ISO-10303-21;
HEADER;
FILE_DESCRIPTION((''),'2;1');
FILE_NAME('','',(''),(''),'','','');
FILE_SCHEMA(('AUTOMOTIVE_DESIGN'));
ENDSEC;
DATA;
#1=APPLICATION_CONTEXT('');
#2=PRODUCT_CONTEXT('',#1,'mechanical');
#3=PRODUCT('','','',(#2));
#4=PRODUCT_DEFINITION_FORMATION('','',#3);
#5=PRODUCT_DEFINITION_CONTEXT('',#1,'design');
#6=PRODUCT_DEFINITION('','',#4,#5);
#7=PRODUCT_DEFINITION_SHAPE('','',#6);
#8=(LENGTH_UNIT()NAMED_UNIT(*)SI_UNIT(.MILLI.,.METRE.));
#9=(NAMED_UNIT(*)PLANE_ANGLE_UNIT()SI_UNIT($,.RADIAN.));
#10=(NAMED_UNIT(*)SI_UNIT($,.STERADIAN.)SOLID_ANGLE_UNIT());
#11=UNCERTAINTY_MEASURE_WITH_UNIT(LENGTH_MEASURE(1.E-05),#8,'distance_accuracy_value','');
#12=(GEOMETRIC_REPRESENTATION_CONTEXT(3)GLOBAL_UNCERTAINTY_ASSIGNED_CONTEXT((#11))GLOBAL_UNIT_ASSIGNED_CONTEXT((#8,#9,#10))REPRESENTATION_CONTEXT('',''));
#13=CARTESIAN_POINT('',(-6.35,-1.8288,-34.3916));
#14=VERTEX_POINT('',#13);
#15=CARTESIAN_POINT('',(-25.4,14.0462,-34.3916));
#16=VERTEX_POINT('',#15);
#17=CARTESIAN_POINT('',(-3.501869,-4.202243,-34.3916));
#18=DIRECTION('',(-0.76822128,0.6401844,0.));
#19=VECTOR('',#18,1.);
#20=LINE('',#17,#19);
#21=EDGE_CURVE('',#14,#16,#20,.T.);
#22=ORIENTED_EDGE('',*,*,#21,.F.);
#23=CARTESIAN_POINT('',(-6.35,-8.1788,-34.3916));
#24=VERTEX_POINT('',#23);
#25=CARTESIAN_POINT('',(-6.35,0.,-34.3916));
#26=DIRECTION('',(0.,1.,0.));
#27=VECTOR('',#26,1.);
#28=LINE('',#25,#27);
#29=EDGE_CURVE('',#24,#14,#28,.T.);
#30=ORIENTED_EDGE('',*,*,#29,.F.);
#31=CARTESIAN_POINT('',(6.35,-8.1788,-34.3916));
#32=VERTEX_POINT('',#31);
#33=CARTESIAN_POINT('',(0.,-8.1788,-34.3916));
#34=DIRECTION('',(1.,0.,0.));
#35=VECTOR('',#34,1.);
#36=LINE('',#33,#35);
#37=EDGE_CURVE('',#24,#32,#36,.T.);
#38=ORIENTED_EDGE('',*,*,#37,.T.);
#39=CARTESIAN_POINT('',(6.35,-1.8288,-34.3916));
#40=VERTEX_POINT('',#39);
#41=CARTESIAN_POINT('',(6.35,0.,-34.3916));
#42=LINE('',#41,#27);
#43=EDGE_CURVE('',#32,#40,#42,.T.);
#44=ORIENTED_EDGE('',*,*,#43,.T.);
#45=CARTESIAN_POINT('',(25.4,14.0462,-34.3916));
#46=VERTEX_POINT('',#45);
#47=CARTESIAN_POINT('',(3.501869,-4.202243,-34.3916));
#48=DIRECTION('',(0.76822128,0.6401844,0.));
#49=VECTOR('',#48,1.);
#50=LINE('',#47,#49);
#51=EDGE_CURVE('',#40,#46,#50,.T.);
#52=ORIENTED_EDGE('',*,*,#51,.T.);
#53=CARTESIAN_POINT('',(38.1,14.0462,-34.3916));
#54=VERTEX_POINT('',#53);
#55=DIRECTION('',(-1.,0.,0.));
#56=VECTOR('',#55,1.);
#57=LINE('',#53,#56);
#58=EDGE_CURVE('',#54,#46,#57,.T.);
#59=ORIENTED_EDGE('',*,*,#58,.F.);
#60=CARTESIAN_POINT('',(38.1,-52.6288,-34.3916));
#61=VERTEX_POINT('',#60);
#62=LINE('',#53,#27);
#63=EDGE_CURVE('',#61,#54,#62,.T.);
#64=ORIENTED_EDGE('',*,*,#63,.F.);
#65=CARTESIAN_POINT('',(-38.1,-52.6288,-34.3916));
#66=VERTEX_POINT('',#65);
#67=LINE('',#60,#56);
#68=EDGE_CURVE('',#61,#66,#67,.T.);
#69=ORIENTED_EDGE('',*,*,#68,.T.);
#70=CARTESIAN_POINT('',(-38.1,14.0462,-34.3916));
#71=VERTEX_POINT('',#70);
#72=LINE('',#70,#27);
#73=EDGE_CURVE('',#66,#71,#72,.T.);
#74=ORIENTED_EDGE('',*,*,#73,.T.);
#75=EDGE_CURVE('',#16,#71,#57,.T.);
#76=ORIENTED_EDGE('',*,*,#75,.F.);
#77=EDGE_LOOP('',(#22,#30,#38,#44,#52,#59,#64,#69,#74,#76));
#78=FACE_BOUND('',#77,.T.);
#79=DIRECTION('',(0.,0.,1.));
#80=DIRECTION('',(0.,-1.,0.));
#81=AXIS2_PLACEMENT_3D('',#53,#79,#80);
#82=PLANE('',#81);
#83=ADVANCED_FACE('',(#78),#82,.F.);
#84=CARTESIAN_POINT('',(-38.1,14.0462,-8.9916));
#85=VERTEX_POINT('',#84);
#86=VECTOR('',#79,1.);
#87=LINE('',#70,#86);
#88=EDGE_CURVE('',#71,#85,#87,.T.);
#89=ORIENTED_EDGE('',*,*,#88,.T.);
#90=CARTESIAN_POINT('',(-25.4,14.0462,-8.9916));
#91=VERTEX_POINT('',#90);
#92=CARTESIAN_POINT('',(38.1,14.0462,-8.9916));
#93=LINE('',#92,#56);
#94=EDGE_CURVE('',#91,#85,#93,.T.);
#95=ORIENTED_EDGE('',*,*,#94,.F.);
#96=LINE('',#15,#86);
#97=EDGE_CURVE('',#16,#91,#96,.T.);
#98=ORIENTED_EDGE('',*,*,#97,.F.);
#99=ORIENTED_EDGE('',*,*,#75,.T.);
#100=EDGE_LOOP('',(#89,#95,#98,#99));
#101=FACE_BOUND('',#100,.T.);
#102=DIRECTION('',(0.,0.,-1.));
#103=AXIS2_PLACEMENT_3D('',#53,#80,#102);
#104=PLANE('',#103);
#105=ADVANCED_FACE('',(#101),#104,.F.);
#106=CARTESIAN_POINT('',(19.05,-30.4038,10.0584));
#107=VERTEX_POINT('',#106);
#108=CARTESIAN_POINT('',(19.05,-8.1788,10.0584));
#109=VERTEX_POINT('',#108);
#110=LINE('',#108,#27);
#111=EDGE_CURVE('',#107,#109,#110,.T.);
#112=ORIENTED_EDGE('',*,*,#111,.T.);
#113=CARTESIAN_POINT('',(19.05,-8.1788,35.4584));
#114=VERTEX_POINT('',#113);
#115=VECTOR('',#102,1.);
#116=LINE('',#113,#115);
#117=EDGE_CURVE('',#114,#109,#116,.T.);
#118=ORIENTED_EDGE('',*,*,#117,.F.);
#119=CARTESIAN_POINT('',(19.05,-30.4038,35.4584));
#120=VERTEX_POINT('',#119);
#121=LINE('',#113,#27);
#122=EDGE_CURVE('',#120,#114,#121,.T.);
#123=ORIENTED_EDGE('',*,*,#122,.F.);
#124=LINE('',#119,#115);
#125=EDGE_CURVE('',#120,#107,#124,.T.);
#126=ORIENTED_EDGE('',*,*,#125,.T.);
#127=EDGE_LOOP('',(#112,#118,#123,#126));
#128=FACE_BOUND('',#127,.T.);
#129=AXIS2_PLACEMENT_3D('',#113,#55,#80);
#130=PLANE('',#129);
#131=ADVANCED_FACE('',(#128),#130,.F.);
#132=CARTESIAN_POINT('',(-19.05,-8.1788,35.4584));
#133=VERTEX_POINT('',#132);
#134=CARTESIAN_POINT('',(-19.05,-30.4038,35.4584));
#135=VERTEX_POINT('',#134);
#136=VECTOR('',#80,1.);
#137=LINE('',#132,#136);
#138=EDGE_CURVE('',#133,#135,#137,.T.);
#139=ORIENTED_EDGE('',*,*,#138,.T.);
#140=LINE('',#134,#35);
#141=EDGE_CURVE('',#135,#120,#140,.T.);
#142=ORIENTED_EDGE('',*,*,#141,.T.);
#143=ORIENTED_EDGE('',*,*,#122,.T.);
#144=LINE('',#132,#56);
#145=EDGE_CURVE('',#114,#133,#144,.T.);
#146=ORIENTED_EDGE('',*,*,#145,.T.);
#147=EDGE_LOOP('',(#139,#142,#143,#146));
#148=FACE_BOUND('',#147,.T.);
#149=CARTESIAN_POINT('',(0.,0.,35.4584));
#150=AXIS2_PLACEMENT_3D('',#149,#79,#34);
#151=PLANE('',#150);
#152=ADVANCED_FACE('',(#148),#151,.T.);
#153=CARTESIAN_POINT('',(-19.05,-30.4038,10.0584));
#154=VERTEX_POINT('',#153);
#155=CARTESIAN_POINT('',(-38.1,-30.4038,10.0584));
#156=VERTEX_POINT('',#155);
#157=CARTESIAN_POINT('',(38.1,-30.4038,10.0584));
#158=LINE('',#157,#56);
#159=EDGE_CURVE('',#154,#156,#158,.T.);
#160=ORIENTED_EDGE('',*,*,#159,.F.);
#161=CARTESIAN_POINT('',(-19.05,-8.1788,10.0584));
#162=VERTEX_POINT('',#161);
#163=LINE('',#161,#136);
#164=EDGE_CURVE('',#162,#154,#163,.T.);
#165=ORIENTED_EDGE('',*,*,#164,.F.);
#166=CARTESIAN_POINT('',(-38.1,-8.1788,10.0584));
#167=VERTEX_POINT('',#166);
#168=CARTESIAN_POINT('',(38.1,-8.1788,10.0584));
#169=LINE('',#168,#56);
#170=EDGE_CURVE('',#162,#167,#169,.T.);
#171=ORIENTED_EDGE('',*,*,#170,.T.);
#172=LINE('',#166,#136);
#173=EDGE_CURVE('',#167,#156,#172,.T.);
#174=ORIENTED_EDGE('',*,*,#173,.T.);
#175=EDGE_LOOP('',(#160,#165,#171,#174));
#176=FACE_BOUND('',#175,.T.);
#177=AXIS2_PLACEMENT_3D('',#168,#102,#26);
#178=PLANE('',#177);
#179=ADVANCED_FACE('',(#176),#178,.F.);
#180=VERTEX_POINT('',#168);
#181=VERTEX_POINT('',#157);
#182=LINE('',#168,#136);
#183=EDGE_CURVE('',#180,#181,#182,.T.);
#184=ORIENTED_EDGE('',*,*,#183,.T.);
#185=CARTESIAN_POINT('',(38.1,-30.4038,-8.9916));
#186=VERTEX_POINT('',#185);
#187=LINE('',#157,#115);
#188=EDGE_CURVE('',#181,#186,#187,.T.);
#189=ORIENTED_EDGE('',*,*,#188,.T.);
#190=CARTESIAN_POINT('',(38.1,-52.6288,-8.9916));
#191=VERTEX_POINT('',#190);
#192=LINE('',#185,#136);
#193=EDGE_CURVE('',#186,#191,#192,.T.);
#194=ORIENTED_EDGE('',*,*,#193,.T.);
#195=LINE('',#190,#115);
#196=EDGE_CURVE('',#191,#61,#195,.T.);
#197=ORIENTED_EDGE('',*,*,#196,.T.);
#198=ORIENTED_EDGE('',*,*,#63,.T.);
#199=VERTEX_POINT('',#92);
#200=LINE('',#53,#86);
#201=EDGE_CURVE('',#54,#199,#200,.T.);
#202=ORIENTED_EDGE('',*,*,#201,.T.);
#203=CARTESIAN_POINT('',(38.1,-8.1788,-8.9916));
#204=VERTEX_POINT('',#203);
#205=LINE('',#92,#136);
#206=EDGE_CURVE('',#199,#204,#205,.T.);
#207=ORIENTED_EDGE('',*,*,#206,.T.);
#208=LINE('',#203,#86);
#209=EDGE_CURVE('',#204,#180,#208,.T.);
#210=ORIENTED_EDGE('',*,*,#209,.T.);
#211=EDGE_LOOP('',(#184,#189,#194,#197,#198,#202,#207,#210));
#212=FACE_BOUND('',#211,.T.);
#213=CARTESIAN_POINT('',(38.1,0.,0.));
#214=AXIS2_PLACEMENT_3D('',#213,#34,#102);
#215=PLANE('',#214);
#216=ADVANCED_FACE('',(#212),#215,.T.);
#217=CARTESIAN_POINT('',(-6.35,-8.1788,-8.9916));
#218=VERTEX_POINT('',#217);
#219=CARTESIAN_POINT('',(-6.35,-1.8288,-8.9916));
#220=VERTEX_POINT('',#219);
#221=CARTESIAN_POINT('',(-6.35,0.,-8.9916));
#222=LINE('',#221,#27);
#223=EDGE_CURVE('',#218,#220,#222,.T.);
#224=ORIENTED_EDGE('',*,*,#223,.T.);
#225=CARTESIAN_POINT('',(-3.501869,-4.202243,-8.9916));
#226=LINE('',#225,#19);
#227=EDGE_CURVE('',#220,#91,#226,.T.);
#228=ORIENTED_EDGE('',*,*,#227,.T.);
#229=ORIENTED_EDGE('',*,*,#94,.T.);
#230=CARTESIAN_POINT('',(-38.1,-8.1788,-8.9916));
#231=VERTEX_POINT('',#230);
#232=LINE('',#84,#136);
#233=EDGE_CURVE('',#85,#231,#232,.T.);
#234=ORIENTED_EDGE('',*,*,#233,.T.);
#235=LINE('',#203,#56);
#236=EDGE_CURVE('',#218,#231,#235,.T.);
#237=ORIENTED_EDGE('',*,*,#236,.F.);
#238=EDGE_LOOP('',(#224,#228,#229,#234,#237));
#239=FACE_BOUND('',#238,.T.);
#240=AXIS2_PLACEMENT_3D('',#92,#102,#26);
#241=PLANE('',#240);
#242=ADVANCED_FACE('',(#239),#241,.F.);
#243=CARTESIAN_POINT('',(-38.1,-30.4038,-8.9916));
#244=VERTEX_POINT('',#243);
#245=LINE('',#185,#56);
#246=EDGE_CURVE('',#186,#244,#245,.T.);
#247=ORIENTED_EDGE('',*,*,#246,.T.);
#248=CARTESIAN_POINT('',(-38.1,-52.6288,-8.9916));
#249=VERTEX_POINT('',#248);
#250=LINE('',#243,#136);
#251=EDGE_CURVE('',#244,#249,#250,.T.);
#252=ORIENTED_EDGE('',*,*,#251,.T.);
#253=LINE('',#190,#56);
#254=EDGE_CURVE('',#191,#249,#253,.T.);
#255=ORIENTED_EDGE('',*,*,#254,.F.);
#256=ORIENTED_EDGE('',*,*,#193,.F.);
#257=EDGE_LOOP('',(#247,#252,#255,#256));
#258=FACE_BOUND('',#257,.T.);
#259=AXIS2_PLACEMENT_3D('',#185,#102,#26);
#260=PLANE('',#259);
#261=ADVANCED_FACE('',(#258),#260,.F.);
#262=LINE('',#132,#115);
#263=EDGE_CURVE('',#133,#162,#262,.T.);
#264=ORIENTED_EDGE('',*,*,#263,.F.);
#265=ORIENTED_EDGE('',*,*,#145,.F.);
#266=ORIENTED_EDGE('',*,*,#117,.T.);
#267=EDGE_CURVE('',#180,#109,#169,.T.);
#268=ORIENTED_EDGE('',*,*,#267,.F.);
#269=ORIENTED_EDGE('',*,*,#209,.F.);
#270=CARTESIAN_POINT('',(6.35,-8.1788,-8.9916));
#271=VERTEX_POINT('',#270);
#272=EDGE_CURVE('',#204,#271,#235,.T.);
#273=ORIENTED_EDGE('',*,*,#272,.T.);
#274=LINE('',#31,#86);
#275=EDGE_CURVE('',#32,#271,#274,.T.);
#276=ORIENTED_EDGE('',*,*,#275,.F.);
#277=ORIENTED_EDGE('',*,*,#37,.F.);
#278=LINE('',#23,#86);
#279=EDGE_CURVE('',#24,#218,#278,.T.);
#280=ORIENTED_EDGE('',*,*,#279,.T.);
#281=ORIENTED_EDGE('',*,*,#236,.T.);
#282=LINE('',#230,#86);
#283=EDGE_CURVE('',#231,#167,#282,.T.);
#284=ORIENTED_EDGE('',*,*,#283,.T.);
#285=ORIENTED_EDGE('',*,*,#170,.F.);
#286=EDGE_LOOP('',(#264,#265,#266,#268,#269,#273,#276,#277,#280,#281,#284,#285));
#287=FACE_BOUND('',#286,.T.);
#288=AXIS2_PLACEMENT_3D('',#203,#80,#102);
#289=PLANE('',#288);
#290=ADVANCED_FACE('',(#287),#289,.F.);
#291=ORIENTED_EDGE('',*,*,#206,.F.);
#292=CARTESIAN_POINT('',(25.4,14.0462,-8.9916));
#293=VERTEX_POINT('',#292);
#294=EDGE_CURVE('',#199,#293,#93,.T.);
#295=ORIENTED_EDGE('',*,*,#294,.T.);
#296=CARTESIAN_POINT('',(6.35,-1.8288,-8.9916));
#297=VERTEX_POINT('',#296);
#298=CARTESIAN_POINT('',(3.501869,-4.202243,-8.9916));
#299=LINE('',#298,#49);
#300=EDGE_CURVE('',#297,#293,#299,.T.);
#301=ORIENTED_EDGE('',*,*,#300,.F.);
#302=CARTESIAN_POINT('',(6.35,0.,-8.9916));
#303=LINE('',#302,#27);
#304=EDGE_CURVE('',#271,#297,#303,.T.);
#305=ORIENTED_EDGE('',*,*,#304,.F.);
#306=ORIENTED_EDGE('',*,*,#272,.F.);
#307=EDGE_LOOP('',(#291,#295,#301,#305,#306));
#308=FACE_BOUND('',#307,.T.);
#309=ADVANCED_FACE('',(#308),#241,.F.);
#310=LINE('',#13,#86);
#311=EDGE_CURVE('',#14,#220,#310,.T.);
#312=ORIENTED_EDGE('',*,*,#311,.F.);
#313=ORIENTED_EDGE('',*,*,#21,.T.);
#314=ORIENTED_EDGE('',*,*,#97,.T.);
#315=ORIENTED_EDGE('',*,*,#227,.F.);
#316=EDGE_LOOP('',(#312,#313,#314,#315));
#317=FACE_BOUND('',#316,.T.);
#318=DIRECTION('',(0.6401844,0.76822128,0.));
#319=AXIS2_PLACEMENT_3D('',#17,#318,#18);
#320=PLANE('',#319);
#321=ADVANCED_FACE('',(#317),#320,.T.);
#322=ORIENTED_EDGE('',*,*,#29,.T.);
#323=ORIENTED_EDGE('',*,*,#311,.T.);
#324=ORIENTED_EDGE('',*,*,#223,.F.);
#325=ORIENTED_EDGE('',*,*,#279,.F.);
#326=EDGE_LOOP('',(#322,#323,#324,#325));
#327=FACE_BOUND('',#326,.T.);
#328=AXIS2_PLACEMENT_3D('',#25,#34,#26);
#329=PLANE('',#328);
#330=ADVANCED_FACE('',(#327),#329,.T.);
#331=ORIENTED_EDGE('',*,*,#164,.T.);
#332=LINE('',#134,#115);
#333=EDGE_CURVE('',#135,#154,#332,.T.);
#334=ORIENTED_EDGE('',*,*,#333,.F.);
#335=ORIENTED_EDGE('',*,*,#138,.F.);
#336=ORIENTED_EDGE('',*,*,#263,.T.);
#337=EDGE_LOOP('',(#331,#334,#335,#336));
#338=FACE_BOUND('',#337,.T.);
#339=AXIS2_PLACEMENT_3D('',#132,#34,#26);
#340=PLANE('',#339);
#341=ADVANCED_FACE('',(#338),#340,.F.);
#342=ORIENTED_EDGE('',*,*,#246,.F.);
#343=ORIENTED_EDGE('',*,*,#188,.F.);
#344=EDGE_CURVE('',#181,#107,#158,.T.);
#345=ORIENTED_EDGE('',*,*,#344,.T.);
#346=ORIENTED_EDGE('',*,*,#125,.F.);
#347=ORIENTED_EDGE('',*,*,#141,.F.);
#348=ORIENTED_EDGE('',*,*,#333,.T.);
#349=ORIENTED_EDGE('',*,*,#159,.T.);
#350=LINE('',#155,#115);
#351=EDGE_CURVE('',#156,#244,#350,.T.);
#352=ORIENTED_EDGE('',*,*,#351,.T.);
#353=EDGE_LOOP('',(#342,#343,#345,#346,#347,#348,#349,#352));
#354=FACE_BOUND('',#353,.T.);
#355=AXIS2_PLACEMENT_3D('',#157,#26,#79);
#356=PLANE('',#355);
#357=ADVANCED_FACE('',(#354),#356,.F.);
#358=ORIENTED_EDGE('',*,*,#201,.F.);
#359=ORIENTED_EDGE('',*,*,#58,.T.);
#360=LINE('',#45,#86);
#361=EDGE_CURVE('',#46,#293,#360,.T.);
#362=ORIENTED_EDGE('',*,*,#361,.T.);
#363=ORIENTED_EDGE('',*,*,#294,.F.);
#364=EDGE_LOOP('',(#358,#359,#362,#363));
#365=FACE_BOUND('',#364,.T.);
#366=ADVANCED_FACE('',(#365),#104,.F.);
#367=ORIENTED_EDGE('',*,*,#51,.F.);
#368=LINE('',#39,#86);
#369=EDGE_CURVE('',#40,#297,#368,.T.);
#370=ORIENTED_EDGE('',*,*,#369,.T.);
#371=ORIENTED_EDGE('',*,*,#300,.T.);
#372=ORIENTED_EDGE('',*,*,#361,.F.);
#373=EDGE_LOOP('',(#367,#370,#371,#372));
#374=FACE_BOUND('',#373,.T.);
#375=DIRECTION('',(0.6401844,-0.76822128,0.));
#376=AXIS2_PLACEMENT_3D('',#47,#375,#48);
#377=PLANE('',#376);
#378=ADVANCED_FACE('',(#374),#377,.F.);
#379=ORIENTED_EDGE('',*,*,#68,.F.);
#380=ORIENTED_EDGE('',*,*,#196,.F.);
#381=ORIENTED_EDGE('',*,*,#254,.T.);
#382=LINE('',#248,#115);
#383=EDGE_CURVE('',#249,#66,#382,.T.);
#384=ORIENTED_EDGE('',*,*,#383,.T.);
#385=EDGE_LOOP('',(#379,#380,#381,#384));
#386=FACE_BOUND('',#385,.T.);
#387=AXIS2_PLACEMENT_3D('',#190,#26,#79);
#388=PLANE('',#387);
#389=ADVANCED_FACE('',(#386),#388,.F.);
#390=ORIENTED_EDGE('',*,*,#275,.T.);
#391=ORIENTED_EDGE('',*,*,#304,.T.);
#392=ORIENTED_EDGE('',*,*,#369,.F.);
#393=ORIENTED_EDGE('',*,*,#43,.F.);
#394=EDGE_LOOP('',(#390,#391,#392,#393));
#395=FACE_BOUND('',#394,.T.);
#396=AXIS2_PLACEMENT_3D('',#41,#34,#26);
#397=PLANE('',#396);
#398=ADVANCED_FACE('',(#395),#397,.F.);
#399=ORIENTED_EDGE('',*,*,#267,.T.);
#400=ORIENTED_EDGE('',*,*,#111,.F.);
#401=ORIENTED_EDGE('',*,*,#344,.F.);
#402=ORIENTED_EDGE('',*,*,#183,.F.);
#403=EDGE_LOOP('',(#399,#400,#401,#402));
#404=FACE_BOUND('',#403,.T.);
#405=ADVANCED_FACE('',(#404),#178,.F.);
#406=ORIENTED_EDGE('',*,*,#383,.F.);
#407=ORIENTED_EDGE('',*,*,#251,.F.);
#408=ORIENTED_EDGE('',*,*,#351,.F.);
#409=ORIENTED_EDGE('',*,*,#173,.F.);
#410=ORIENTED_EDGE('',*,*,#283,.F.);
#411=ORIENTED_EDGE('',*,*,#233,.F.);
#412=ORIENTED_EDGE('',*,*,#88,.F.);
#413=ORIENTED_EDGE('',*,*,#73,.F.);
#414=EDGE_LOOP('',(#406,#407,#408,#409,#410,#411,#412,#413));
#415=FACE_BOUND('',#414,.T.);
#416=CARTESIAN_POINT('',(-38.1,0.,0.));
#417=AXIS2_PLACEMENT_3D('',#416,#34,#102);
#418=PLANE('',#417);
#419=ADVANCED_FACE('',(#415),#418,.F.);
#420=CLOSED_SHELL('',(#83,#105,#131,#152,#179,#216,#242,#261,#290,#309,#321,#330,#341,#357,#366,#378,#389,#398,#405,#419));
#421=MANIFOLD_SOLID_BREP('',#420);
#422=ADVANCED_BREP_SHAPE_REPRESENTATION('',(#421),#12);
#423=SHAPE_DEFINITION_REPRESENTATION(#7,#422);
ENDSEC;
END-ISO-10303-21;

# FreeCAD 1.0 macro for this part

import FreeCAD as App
import Part
import Sketcher
from FreeCAD import Vector
Q = App.Units.Quantity


def add_polygon(sketch, points):
    """Adds a closed chain of lines whose ends are joined by coincident constraints."""
    first, n = sketch.GeometryCount, len(points)
    for a, b in zip(points, points[1:] + points[:1]):
        sketch.addGeometry(Part.LineSegment(App.Vector(*a, 0), App.Vector(*b, 0)), False)
    for i in range(n):
        sketch.addConstraint(Sketcher.Constraint("Coincident", first + i, 2, first + (i + 1) % n, 1))

doc = App.newDocument("Part")
body = doc.addObject("PartDesign::Body", "Body")

sketch1 = body.newObject("Sketcher::SketchObject", "Sketch")
sketch1.AttachmentSupport = (doc.getObject("YZ_Plane"), [""])
sketch1.MapMode = "FlatFace"
add_polygon(sketch1, [(-30, 10), (-30, -9), (-53, -9), (-53, -34), (14, -34), (14, -9), (-8, -9), (-8, 10)])
sketch1.addConstraint([
    Sketcher.Constraint("Vertical", 0),
    Sketcher.Constraint("Horizontal", 1),
    Sketcher.Constraint("Vertical", 2),
    Sketcher.Constraint("Horizontal", 3),
    Sketcher.Constraint("Vertical", 4),
    Sketcher.Constraint("Horizontal", 5),
    Sketcher.Constraint("Vertical", 6),
    Sketcher.Constraint("Horizontal", 7),
    Sketcher.Constraint("Horizontal", 1, 2, 4, 2),
    Sketcher.Constraint("Equal", 1, 5),
    Sketcher.Constraint("Equal", 5, 7),
    Sketcher.Constraint("DistanceY", 2, 2, 2, 1, Q("1 in")),
    Sketcher.Constraint("DistanceY", 0, 2, 0, 1, Q("0.75 in")),
    Sketcher.Constraint("DistanceX", 1, 2, 1, 1, Q("0.875 in")),
    Sketcher.Constraint("DistanceX", 0, 2, -1, 1, Q("1.197 in")),
    Sketcher.Constraint("DistanceY", 0, 2, -1, 1, Q("0.354 in")),
])
pad1 = body.newObject("PartDesign::Pad", "Pad")
pad1.Profile = sketch1
pad1.Length = Q("3 in")
pad1.Midplane = True

sketch2 = body.newObject("Sketcher::SketchObject", "Sketch001")
sketch2.AttachmentSupport = (doc.getObject("XY_Plane"), [""])
sketch2.MapMode = "FlatFace"
sketch2.AttachmentOffset = App.Placement(Vector(0, 0, 0.396 * 25.4), App.Rotation())
add_polygon(sketch2, [(-19, -8), (-19, -30), (19, -30), (19, -8)])
sketch2.addConstraint([
    Sketcher.Constraint("Vertical", 0),
    Sketcher.Constraint("Horizontal", 1),
    Sketcher.Constraint("Vertical", 2),
    Sketcher.Constraint("Horizontal", 3),
    Sketcher.Constraint("DistanceX", 1, 1, 1, 2, Q("1.5 in")),
    Sketcher.Constraint("DistanceY", 0, 2, 0, 1, Q("0.875 in")),
    Sketcher.Constraint("DistanceX", 0, 2, -1, 1, Q("0.75 in")),
    Sketcher.Constraint("DistanceY", 0, 2, -1, 1, Q("1.197 in")),
])
pad2 = body.newObject("PartDesign::Pad", "Pad001")
pad2.Profile = sketch2
pad2.Length = Q("1 in")

sketch3 = body.newObject("Sketcher::SketchObject", "Sketch002")
sketch3.AttachmentSupport = (doc.getObject("XY_Plane"), [""])
sketch3.MapMode = "FlatFace"
sketch3.AttachmentOffset = App.Placement(Vector(0, 0, -0.354 * 25.4), App.Rotation())
add_polygon(sketch3, [(6, -2), (25, 14), (-25, 14), (-6, -2), (-6, -8), (6, -8)])
sketch3.addConstraint([
    Sketcher.Constraint("Horizontal", 1),
    Sketcher.Constraint("Vertical", 3),
    Sketcher.Constraint("Horizontal", 4),
    Sketcher.Constraint("Vertical", 5),
    Sketcher.Constraint("Symmetric", 2, 2, 5, 2, -2),
    Sketcher.Constraint("Equal", 0, 2),
    Sketcher.Constraint("DistanceX", 1, 2, 1, 1, Q("2 in")),
    Sketcher.Constraint("DistanceX", 4, 1, 4, 2, Q("0.5 in")),
    Sketcher.Constraint("DistanceY", 3, 2, 3, 1, Q("0.25 in")),
    Sketcher.Constraint("DistanceY", -1, 1, 0, 2, Q("0.553 in")),
    Sketcher.Constraint("DistanceY", 2, 2, -1, 1, Q("0.072 in")),
])
pocket1 = body.newObject("PartDesign::Pocket", "Pocket")
pocket1.Profile = sketch3
pocket1.Length = Q("1 in")

doc.recompute()
